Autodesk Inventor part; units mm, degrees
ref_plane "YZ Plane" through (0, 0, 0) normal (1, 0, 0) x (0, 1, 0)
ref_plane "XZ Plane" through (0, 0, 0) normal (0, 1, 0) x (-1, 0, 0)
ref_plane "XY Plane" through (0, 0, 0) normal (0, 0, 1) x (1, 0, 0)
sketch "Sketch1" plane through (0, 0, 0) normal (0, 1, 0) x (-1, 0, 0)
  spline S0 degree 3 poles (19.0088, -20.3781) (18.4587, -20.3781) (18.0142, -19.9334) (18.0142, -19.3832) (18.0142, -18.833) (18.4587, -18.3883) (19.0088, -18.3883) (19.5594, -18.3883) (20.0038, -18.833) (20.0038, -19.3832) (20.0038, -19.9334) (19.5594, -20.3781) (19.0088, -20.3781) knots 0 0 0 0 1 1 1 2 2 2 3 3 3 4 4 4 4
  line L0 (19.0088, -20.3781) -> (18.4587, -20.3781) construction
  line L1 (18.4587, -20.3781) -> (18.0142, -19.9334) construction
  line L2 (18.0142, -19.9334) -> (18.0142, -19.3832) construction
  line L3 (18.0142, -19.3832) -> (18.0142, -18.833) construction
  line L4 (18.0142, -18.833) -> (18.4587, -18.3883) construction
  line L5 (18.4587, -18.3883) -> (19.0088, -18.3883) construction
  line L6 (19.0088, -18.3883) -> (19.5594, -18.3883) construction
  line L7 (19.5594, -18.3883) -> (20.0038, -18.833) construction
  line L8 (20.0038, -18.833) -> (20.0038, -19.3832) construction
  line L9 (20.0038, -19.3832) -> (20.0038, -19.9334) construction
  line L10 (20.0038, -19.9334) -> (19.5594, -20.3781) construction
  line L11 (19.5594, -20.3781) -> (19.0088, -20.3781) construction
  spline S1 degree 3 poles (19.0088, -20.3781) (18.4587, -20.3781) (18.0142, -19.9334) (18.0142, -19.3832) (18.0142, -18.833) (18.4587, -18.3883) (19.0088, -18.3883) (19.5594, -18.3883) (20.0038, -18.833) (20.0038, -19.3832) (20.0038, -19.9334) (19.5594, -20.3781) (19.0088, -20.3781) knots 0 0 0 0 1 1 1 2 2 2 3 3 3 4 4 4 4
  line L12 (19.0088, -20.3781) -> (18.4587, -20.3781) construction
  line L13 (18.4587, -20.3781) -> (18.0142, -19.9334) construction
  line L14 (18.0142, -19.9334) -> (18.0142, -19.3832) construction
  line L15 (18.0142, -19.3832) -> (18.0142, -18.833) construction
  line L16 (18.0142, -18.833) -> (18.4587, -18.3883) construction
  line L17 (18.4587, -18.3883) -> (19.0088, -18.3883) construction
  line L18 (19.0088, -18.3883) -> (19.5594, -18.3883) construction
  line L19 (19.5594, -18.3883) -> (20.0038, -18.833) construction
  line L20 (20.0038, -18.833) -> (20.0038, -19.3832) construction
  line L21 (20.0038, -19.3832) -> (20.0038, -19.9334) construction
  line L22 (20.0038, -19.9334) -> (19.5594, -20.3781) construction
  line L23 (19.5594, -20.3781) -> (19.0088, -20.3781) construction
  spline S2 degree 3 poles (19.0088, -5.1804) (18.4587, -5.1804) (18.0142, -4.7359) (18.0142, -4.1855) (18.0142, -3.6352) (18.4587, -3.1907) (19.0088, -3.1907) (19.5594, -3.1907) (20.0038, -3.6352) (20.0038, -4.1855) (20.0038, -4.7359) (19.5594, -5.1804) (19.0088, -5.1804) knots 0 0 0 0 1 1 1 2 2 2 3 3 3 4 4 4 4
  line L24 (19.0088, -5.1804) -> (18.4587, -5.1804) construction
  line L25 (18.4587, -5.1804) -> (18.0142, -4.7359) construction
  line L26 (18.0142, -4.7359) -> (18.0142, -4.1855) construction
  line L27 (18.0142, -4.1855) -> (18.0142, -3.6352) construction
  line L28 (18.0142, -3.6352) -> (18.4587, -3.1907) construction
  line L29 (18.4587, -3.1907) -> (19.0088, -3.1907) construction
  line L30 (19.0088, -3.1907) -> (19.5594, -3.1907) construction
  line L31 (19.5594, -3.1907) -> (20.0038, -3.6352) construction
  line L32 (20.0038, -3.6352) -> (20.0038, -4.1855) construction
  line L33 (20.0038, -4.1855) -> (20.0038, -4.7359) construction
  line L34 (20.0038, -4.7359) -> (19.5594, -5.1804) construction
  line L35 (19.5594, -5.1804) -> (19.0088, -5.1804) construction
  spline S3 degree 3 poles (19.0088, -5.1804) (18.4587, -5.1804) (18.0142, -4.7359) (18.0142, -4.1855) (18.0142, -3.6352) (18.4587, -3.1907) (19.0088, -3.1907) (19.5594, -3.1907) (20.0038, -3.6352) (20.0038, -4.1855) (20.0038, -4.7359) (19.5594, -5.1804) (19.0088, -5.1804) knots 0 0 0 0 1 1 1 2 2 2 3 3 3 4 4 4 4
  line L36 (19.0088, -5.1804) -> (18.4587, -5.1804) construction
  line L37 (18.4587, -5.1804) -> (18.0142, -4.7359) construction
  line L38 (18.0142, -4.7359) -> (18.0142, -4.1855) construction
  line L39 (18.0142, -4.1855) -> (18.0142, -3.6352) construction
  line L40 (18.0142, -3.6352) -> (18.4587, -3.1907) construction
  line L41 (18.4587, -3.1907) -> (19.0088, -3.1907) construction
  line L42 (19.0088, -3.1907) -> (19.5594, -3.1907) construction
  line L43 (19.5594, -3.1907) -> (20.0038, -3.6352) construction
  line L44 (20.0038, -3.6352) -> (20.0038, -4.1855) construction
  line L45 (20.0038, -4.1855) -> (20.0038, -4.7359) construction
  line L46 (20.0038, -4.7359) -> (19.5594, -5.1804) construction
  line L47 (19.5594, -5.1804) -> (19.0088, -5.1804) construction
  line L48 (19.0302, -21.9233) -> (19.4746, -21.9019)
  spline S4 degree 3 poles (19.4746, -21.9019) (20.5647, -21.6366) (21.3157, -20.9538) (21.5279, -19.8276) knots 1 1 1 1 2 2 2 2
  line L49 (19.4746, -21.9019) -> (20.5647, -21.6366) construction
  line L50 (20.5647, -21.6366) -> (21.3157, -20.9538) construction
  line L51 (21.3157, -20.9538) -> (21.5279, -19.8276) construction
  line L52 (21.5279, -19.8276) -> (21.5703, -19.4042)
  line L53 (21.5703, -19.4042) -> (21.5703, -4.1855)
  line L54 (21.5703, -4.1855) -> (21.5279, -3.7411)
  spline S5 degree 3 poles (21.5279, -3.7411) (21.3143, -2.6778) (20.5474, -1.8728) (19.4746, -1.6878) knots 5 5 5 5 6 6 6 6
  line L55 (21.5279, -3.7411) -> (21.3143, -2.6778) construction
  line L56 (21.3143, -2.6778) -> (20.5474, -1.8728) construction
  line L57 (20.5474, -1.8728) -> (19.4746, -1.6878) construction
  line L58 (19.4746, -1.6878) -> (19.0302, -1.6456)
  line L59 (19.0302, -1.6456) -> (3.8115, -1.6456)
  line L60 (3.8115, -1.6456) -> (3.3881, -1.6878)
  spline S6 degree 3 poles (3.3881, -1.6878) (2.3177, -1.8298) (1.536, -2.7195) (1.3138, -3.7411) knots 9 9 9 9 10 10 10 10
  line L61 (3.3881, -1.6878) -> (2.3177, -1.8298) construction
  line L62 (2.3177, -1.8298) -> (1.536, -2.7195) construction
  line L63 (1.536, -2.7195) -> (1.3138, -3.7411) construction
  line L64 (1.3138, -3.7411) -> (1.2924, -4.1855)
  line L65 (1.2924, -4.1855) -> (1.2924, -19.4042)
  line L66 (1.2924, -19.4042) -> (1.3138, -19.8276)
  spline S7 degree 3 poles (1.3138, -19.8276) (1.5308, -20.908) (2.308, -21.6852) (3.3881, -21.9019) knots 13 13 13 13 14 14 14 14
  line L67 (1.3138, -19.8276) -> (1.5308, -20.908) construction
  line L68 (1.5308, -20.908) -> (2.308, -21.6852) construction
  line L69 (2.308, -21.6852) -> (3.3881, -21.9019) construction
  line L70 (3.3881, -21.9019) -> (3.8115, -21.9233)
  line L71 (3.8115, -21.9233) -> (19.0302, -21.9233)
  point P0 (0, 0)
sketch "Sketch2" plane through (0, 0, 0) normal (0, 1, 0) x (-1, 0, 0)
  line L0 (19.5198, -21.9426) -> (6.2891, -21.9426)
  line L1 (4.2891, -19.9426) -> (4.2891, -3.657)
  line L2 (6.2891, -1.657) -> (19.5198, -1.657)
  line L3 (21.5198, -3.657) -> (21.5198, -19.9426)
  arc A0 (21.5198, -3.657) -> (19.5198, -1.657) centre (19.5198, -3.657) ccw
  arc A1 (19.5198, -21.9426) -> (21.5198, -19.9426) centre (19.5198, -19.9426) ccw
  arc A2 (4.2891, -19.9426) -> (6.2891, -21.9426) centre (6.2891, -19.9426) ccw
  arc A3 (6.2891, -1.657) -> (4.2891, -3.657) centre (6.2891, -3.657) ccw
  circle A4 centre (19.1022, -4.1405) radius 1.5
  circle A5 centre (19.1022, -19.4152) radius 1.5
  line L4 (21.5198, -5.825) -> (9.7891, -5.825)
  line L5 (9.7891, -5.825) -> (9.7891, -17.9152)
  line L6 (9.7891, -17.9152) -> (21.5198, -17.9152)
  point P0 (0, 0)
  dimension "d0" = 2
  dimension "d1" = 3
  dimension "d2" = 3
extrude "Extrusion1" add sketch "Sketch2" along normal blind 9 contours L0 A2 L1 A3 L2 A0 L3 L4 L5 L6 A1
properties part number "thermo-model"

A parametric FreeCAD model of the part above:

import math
import FreeCAD as App
import Part
import Sketcher
from FreeCAD import Vector
Q = App.Units.Quantity

doc = App.newDocument("Part")
body = doc.addObject("PartDesign::Body", "Body")

sketch1 = body.newObject("Sketcher::SketchObject", "Sketch")
sketch1.AttachmentSupport = (doc.getObject("XZ_Plane"), [""])
sketch1.MapMode = "FlatFace"
sketch1.addGeometry(Part.LineSegment(Vector(-6.2891, -21.9426, 0), Vector(-19.5198, -21.9426, 0)), False)
sketch1.addGeometry(Part.ArcOfCircle(Part.Circle(Vector(-19.5198, -19.9426, 0), Vector(0, 0, 1), 2), math.radians(180), math.radians(270)), False)
sketch1.addGeometry(Part.LineSegment(Vector(-21.5198, -19.9426, 0), Vector(-21.5198, -17.9152, 0)), False)
sketch1.addGeometry(Part.LineSegment(Vector(-21.5198, -17.9152, 0), Vector(-19.1022, -17.9152, 0)), False)
sketch1.addGeometry(Part.LineSegment(Vector(-19.1022, -17.9152, 0), Vector(-9.7891, -17.9152, 0)), False)
sketch1.addGeometry(Part.LineSegment(Vector(-9.7891, -17.9152, 0), Vector(-9.7891, -5.825, 0)), False)
sketch1.addGeometry(Part.LineSegment(Vector(-9.7891, -5.825, 0), Vector(-21.5198, -5.825, 0)), False)
sketch1.addGeometry(Part.LineSegment(Vector(-21.5198, -5.825, 0), Vector(-21.5198, -3.657, 0)), False)
sketch1.addGeometry(Part.ArcOfCircle(Part.Circle(Vector(-19.5198, -3.657, 0), Vector(0, 0, 1), 2), math.radians(90), math.radians(180)), False)
sketch1.addGeometry(Part.LineSegment(Vector(-19.5198, -1.657, 0), Vector(-6.2891, -1.657, 0)), False)
sketch1.addGeometry(Part.ArcOfCircle(Part.Circle(Vector(-6.2891, -3.657, 0), Vector(0, 0, 1), 2), math.radians(0), math.radians(90)), False)
sketch1.addGeometry(Part.LineSegment(Vector(-4.2891, -3.657, 0), Vector(-4.2891, -19.9426, 0)), False)
sketch1.addGeometry(Part.ArcOfCircle(Part.Circle(Vector(-6.2891, -19.9426, 0), Vector(0, 0, 1), 2), math.radians(-90), math.radians(0)), False)
sketch1.addGeometry(Part.Circle(Vector(-19.1022, -19.4152, 0), Vector(0, 0, 1), 1.5), False)
sketch1.addGeometry(Part.Circle(Vector(-19.1022, -4.1405, 0), Vector(0, 0, 1), 1.5), False)
sketch1.addConstraint(Sketcher.Constraint("Tangent", 0, 2, 1, 2))
sketch1.addConstraint(Sketcher.Constraint("Tangent", 1, 1, 2, 1))
sketch1.addConstraint(Sketcher.Constraint("Coincident", 2, 2, 3, 1))
sketch1.addConstraint(Sketcher.Constraint("Coincident", 3, 2, 4, 1))
sketch1.addConstraint(Sketcher.Constraint("Coincident", 4, 2, 5, 1))
sketch1.addConstraint(Sketcher.Constraint("Coincident", 5, 2, 6, 1))
sketch1.addConstraint(Sketcher.Constraint("Coincident", 6, 2, 7, 1))
sketch1.addConstraint(Sketcher.Constraint("Tangent", 7, 2, 8, 2))
sketch1.addConstraint(Sketcher.Constraint("Tangent", 8, 1, 9, 1))
sketch1.addConstraint(Sketcher.Constraint("Tangent", 9, 2, 10, 2))
sketch1.addConstraint(Sketcher.Constraint("Tangent", 10, 1, 11, 1))
sketch1.addConstraint(Sketcher.Constraint("Tangent", 11, 2, 12, 2))
sketch1.addConstraint(Sketcher.Constraint("Tangent", 12, 1, 0, 1))
sketch1.addConstraint(Sketcher.Constraint("Horizontal", 0))
sketch1.addConstraint(Sketcher.Constraint("Vertical", 2))
sketch1.addConstraint(Sketcher.Constraint("Horizontal", 3))
sketch1.addConstraint(Sketcher.Constraint("Horizontal", 4))
sketch1.addConstraint(Sketcher.Constraint("Vertical", 5))
sketch1.addConstraint(Sketcher.Constraint("Horizontal", 6))
sketch1.addConstraint(Sketcher.Constraint("Vertical", 7))
sketch1.addConstraint(Sketcher.Constraint("Horizontal", 9))
sketch1.addConstraint(Sketcher.Constraint("Vertical", 11))
sketch1.addConstraint(Sketcher.Constraint("Equal", 1, 8))
sketch1.addConstraint(Sketcher.Constraint("Equal", 8, 10))
sketch1.addConstraint(Sketcher.Constraint("Equal", 10, 12))
sketch1.addConstraint(Sketcher.Constraint("Equal", 13, 14))
sketch1.addConstraint(Sketcher.Constraint("Vertical", 1, 3, 8, 3))
sketch1.addConstraint(Sketcher.Constraint("Vertical", 13, 3, 14, 3))
sketch1.addConstraint(Sketcher.Constraint("Vertical", 14, 3, 3, 2))
sketch1.addConstraint(Sketcher.Constraint("Diameter", 13, Q("3 mm")))
sketch1.addConstraint(Sketcher.Constraint("Radius", 1, Q("2 mm")))
sketch1.addConstraint(Sketcher.Constraint("DistanceY", 13, 3, 2, 2, Q("1.5 mm")))
sketch1.addConstraint(Sketcher.Constraint("DistanceX", 4, 2, 12, 3, Q("3.5 mm")))
sketch1.addConstraint(Sketcher.Constraint("DistanceX", 4, 1, 4, 2, Q("9.313 mm")))
sketch1.addConstraint(Sketcher.Constraint("DistanceY", 7, 1, 7, 2, Q("2.168 mm")))
sketch1.addConstraint(Sketcher.Constraint("DistanceX", 0, 2, 0, 1, Q("13.2307 mm")))
sketch1.addConstraint(Sketcher.Constraint("DistanceY", 2, 1, 2, 2, Q("2.0274 mm")))
sketch1.addConstraint(Sketcher.Constraint("DistanceY", 5, 1, 5, 2, Q("12.0902 mm")))
sketch1.addConstraint(Sketcher.Constraint("DistanceY", 8, 3, -1, 1, Q("3.657 mm")))
sketch1.addConstraint(Sketcher.Constraint("DistanceX", 10, 3, -1, 1, Q("6.289 mm")))
sketch1.addConstraint(Sketcher.Constraint("DistanceY", 1, 3, 14, 3, Q("15.802 mm")))
pad1 = body.newObject("PartDesign::Pad", "Pad")
pad1.Profile = sketch1
pad1.Length = 9
pad1.Reversed = True

doc.recompute()
